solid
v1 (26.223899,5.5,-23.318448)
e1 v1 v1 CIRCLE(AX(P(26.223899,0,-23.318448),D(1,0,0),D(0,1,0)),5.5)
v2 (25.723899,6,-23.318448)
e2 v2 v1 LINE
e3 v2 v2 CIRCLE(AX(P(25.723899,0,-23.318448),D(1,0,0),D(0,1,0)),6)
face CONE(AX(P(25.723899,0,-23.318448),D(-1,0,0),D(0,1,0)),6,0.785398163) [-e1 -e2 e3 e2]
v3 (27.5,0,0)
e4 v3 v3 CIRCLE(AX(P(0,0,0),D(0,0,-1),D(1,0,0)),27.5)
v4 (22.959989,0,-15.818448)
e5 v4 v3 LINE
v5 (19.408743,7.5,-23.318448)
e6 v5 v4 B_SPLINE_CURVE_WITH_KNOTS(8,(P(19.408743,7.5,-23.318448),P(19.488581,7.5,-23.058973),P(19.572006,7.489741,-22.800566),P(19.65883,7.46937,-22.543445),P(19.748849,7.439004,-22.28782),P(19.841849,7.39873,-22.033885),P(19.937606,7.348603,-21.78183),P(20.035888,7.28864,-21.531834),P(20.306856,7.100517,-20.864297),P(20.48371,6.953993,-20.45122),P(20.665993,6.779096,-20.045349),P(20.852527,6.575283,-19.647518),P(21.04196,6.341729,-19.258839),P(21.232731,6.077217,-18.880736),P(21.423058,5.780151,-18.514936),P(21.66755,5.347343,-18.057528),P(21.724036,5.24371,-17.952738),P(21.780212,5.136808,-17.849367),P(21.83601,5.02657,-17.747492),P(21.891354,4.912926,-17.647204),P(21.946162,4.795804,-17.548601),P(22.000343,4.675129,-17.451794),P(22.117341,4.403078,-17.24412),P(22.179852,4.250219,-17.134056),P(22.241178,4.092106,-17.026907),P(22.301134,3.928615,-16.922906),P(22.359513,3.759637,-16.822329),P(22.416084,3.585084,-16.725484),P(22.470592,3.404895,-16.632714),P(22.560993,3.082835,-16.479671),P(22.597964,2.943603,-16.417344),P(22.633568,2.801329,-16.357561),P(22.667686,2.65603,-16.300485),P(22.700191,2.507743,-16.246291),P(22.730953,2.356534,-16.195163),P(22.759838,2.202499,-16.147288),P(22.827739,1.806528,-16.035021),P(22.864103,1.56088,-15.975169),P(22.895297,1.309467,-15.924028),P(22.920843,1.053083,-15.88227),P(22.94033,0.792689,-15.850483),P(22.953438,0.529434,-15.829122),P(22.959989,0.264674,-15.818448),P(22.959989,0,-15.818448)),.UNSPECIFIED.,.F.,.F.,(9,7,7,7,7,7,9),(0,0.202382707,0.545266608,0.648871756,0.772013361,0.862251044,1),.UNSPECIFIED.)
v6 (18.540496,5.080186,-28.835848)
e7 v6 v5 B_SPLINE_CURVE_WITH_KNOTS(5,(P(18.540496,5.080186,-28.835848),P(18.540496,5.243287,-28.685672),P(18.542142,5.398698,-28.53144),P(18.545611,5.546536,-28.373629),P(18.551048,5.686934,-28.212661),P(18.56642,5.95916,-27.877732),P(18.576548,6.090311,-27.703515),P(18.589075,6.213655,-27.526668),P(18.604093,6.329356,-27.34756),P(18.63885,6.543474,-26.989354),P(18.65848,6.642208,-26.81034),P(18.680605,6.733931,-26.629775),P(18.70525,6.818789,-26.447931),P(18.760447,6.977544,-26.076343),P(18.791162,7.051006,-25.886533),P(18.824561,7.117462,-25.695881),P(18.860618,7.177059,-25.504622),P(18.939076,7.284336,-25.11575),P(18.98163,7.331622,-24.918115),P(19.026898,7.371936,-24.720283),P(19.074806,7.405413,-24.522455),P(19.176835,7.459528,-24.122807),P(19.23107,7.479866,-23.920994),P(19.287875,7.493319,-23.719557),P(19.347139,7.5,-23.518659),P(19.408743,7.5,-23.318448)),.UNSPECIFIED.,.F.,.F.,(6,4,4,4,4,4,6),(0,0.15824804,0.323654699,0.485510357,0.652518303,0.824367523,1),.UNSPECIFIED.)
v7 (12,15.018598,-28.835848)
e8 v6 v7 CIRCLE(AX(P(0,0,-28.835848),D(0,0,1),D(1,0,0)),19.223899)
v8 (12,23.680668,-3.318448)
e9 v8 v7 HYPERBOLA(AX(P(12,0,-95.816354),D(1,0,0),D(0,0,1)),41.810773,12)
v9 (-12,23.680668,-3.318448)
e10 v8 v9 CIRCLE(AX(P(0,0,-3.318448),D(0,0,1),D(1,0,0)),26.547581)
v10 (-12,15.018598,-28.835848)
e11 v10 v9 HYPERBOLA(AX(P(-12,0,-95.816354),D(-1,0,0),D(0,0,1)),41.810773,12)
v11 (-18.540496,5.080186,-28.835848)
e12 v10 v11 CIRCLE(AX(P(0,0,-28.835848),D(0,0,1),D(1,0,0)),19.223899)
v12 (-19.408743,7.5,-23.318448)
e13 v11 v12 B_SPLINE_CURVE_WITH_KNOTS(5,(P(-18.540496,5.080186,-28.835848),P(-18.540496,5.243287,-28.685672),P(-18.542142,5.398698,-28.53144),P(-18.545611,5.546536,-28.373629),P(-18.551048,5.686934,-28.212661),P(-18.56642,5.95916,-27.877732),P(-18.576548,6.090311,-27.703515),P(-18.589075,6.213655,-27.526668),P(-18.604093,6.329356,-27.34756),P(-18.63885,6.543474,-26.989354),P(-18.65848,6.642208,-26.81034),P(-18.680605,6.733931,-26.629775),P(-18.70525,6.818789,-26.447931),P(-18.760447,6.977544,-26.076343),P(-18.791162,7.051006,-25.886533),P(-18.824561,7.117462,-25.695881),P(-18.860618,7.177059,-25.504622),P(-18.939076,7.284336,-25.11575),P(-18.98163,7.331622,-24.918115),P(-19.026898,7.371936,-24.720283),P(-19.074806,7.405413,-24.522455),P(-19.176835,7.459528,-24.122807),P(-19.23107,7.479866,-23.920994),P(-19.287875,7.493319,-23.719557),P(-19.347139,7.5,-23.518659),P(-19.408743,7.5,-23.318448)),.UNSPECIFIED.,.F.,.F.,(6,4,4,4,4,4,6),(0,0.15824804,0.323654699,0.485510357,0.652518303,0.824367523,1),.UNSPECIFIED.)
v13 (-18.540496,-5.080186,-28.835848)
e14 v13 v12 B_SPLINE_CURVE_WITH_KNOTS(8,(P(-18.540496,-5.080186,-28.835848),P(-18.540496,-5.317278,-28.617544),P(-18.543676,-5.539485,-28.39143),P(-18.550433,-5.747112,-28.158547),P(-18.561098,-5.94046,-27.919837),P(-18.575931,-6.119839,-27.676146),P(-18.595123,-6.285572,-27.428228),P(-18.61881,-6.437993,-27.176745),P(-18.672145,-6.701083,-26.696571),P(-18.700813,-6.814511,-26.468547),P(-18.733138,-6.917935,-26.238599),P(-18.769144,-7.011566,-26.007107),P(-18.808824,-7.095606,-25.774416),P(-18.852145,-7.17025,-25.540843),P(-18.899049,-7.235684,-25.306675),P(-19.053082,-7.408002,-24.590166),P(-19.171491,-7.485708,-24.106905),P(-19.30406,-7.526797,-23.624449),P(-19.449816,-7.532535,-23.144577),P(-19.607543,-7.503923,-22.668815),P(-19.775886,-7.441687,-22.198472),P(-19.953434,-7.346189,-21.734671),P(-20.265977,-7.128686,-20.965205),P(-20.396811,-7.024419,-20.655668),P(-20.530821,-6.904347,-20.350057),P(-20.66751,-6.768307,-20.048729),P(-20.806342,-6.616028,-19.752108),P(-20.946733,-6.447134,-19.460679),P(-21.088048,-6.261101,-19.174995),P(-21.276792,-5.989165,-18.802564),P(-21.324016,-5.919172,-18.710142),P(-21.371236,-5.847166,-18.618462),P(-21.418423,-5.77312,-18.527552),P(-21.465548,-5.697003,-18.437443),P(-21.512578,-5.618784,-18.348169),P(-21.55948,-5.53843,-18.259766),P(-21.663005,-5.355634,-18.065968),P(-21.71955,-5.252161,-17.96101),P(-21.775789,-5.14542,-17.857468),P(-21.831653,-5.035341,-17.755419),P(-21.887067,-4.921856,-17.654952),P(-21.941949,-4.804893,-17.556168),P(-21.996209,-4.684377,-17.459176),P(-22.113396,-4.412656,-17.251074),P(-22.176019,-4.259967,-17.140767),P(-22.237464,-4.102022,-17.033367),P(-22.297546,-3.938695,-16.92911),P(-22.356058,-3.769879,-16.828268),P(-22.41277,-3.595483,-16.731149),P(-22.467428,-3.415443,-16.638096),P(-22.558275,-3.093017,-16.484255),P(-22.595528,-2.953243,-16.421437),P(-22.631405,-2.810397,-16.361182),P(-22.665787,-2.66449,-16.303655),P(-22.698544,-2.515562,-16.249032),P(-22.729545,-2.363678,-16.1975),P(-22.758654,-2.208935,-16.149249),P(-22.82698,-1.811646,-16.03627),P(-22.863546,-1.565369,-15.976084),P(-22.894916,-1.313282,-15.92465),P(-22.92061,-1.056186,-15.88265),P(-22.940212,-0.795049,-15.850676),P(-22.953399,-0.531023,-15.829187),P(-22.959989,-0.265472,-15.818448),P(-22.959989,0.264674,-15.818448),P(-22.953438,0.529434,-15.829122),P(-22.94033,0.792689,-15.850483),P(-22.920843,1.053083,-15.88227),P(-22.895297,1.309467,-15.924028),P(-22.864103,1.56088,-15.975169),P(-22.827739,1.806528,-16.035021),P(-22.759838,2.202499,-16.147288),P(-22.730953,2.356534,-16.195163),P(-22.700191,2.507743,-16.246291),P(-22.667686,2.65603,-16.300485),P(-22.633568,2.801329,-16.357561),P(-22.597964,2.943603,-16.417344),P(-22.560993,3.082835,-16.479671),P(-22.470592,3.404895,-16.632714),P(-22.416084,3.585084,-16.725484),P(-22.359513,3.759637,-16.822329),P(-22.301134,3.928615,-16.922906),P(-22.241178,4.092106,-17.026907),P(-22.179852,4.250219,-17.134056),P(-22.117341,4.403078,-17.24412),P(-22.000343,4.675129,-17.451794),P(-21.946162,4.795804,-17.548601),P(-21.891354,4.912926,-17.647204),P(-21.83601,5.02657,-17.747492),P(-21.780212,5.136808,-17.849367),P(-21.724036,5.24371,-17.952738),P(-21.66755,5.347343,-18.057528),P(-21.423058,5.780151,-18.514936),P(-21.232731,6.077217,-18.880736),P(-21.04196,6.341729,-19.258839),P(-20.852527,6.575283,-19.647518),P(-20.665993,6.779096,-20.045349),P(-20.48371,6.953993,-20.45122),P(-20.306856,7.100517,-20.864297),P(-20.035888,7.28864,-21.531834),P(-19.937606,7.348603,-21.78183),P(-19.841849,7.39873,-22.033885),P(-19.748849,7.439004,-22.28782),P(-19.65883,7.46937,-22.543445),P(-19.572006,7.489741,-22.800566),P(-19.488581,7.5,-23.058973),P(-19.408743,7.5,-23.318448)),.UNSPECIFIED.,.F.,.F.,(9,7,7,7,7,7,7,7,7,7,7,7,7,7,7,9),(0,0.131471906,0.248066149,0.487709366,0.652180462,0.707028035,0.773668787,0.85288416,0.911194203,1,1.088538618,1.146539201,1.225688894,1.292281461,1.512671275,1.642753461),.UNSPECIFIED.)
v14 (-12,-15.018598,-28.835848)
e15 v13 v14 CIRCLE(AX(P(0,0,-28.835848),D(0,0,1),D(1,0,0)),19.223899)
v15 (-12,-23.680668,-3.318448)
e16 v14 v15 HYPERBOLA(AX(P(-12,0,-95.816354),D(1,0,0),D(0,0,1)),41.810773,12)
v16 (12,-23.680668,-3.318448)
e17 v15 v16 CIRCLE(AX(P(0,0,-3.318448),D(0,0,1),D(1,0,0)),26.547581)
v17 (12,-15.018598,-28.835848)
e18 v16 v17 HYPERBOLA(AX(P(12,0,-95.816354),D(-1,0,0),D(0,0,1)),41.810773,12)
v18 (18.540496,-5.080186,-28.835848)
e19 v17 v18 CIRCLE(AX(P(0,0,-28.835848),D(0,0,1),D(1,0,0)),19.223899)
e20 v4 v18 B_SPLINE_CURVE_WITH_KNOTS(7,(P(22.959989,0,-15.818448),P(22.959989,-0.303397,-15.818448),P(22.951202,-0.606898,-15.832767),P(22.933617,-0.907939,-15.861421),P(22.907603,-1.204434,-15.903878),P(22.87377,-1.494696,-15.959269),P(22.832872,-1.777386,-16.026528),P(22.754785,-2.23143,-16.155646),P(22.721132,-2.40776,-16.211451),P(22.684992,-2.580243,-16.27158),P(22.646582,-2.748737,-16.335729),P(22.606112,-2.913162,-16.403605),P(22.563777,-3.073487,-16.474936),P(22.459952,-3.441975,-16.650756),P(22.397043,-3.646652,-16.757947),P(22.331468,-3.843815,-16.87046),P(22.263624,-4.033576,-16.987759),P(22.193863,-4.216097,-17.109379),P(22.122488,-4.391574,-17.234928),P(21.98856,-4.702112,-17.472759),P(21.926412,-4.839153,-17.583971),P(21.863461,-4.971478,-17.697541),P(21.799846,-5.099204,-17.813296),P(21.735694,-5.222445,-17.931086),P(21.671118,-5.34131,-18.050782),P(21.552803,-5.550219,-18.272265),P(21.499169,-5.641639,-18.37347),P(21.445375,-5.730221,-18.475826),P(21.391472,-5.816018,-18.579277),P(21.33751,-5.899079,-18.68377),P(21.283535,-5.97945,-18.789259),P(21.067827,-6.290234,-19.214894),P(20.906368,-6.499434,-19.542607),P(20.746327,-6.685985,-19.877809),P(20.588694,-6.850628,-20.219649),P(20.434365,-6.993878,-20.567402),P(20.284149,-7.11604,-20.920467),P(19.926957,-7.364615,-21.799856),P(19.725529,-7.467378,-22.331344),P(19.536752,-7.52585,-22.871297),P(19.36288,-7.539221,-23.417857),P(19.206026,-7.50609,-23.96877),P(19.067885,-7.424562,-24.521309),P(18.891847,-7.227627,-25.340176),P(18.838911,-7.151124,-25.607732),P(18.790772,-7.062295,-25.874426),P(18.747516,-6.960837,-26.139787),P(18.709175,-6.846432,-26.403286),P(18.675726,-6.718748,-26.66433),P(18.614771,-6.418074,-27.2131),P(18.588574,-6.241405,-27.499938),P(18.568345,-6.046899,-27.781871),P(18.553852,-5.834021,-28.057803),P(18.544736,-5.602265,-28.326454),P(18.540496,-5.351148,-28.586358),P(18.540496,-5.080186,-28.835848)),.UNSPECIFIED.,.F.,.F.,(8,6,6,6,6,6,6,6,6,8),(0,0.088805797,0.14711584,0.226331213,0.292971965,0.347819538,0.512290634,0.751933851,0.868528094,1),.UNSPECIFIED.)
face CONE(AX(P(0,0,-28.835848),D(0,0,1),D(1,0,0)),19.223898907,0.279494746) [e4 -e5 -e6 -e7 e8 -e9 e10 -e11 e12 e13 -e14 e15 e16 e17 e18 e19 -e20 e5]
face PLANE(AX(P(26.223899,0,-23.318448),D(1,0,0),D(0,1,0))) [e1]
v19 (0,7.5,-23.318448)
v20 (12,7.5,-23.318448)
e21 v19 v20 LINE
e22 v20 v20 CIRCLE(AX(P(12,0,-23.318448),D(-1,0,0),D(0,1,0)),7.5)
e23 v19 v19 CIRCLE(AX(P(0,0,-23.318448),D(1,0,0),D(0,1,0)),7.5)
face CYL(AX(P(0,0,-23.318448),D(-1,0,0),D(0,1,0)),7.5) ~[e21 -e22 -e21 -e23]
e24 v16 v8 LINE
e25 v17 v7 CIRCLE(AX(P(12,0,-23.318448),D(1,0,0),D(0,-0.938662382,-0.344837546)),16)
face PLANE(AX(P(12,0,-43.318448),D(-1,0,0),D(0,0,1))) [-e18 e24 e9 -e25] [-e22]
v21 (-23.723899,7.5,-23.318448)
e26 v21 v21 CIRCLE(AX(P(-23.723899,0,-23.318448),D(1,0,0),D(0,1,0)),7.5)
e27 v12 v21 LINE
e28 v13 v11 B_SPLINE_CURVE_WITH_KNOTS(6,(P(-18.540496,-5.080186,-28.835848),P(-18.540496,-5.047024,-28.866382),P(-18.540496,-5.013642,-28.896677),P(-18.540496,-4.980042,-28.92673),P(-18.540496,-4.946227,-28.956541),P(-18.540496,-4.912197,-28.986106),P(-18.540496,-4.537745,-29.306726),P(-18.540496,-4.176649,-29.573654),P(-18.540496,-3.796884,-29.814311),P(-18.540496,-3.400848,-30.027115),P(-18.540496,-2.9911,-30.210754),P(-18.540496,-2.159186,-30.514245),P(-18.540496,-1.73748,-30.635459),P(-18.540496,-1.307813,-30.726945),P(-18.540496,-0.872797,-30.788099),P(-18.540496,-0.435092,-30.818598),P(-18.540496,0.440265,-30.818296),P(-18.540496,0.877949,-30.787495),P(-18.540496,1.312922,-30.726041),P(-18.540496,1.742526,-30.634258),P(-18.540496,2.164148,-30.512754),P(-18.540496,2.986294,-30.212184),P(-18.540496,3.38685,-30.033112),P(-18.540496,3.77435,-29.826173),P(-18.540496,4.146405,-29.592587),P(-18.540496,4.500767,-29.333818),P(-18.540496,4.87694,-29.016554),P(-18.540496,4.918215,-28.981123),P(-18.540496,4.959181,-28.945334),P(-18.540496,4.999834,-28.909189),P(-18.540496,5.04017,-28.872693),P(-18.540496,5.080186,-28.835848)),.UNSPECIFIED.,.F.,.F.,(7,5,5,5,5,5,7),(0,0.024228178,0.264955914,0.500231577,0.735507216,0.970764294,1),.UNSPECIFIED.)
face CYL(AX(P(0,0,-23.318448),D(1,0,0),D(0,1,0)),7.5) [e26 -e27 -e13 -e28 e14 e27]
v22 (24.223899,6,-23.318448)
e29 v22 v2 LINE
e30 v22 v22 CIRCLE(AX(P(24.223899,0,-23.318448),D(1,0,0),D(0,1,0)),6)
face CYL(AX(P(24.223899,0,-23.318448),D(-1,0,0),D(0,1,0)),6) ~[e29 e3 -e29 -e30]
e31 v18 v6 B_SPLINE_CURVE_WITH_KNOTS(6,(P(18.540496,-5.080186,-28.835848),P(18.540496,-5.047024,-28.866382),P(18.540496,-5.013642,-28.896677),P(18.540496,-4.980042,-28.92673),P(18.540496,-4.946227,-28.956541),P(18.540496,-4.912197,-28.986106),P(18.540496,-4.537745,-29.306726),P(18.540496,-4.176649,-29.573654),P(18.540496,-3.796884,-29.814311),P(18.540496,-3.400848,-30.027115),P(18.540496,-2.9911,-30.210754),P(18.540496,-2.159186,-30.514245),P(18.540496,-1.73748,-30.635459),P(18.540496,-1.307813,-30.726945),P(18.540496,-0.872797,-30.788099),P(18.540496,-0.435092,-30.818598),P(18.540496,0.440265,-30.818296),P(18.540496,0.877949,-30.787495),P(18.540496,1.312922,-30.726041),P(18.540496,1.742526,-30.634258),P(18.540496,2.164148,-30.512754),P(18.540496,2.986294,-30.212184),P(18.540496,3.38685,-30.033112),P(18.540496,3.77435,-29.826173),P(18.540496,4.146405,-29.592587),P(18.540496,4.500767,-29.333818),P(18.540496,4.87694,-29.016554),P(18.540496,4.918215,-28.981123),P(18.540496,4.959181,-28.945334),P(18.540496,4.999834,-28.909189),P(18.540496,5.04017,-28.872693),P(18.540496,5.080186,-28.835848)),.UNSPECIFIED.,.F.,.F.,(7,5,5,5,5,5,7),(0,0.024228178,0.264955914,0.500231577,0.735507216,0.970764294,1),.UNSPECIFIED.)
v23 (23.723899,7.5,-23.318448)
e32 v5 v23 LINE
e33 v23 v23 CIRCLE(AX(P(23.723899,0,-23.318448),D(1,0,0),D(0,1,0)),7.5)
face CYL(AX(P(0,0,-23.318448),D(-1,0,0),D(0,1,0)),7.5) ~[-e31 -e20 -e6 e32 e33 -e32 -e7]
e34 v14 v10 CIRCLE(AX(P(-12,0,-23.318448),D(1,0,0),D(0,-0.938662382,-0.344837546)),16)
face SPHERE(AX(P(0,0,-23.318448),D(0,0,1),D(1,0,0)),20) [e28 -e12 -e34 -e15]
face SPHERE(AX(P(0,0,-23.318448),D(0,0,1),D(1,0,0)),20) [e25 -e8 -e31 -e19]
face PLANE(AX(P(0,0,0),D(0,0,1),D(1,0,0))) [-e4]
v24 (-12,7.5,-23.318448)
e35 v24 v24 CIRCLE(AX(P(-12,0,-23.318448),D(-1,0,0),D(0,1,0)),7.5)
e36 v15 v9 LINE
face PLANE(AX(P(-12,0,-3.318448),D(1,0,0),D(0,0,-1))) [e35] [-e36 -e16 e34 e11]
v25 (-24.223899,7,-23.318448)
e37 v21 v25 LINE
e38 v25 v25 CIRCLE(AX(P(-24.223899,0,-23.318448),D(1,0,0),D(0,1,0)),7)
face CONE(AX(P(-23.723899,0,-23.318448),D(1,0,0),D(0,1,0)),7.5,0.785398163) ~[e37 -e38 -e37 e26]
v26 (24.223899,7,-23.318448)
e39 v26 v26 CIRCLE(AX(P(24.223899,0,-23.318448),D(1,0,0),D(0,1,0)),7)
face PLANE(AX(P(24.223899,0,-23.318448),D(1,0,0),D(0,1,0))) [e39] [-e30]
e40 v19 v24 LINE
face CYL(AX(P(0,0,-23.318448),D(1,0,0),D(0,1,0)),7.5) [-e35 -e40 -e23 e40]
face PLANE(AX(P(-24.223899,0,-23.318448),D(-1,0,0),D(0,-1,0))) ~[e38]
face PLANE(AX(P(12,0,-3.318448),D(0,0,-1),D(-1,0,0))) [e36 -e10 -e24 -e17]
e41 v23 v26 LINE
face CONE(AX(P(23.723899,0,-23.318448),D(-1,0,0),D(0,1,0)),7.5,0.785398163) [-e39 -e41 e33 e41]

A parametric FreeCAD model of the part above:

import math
import FreeCAD as App
import Part
import Sketcher

V = App.Vector
Q = App.Units.Quantity


def edges_at(feature, points):
    """Names of the edges that pass closest to the given points."""
    edges = feature.Shape.Edges
    near = lambda p: min(range(len(edges)), key=lambda i: edges[i].distToShape(Part.Vertex(*p))[0])
    return sorted({f"Edge{near(p) + 1}" for p in points})


def add_polygon(sketch, points):
    """Adds a closed chain of lines whose ends are joined by coincident constraints."""
    first, n = sketch.GeometryCount, len(points)
    for a, b in zip(points, points[1:] + points[:1]):
        sketch.addGeometry(Part.LineSegment(App.Vector(*a, 0), App.Vector(*b, 0)), False)
    for i in range(n):
        sketch.addConstraint(Sketcher.Constraint("Coincident", first + i, 2, first + (i + 1) % n, 1))

doc = App.newDocument("Part")
body = doc.addObject("PartDesign::Body", "Body")

# Sketch on XZ plane
sketch1 = body.newObject("Sketcher::SketchObject", "Sketch")
sketch1.AttachmentSupport = (doc.getObject("XZ_Plane"), [""])
sketch1.MapMode = "FlatFace"
sketch1.addGeometry(Part.LineSegment(V(28, 0, 0), V(0, 0, 0)), False)
sketch1.addGeometry(Part.LineSegment(V(0, 0, 0), V(0, -43, 0)), False)
sketch1.addGeometry(Part.ArcOfCircle(Part.Circle(V(0, -23, 0), V(0, 0, 1), 20), math.radians(-90), math.radians(-16)), False)
sketch1.addGeometry(Part.LineSegment(V(19, -29, 0), V(28, 0, 0)), False)
sketch1.addConstraint(Sketcher.Constraint("Coincident", 0, 2, 1, 1))
sketch1.addConstraint(Sketcher.Constraint("Coincident", 1, 2, 2, 1))
sketch1.addConstraint(Sketcher.Constraint("Tangent", 2, 2, 3, 1))
sketch1.addConstraint(Sketcher.Constraint("Coincident", 3, 2, 0, 1))
sketch1.addConstraint(Sketcher.Constraint("Horizontal", 0))
sketch1.addConstraint(Sketcher.Constraint("Vertical", 1))
sketch1.addConstraint(Sketcher.Constraint("Coincident", 0, 2, -1, 1))
sketch1.addConstraint(Sketcher.Constraint("PointOnObject", 2, 3, -2))
sketch1.addConstraint(Sketcher.Constraint("Radius", 2, Q("20 mm")))
sketch1.addConstraint(Sketcher.Constraint("Distance", 3, Q("30 mm")))
sketch1.addConstraint(Sketcher.Constraint("DistanceX", 0, 2, 0, 1, Q("27.5 mm")))
revolution = body.newObject("PartDesign::Revolution", "Revolution")
revolution.Profile = sketch1
revolution.ReferenceAxis = (sketch1, ["V_Axis"])
revolution.Angle = 360

# Sketch on XZ plane
sketch2 = body.newObject("Sketcher::SketchObject", "Sketch001")
sketch2.AttachmentSupport = (doc.getObject("XZ_Plane"), [""])
sketch2.MapMode = "FlatFace"
add_polygon(sketch2, [(12, -43), (12, -3), (-12, -3), (-12, -43)])  # lines 0-3
sketch2.addConstraint(Sketcher.Constraint("Vertical", 0))
sketch2.addConstraint(Sketcher.Constraint("Horizontal", 1))
sketch2.addConstraint(Sketcher.Constraint("Vertical", 2))
sketch2.addConstraint(Sketcher.Constraint("Horizontal", 3))
sketch2.addConstraint(Sketcher.Constraint("DistanceX", 1, 2, 1, 1, Q("24 mm")))
sketch2.addConstraint(Sketcher.Constraint("DistanceY", 0, 1, 0, 2, Q("40 mm")))
sketch2.addConstraint(Sketcher.Constraint("DistanceX", -1, 1, 0, 2, Q("12 mm")))
sketch2.addConstraint(Sketcher.Constraint("DistanceY", 0, 2, -1, 1, Q("3.318448 mm")))
pocket1 = body.newObject("PartDesign::Pocket", "Pocket")
pocket1.Profile = sketch2
pocket1.Type = "ThroughAll"
pocket1.Midplane = True

# Sketch on YZ plane
sketch3 = body.newObject("Sketcher::SketchObject", "Sketch002")
sketch3.AttachmentSupport = (doc.getObject("YZ_Plane"), [""])
sketch3.MapMode = "FlatFace"
sketch3.addGeometry(Part.Circle(V(0, -23, 0), V(0, 0, 1), 8), False)
sketch3.addConstraint(Sketcher.Constraint("PointOnObject", 0, 3, -2))
sketch3.addConstraint(Sketcher.Constraint("Diameter", 0, Q("15 mm")))
sketch3.addConstraint(Sketcher.Constraint("DistanceY", 0, 3, -1, 1, Q("23.318448 mm")))
pad1 = body.newObject("PartDesign::Pad", "Pad")
pad1.Profile = sketch3
pad1.Length = 24.223899
body2 = doc.addObject("PartDesign::Body", "Body001")
doc.recompute()

body2.BaseFeature = body
doc.recompute()

mirroring = doc.addObject("Part::Mirroring", "Mirroring")
mirroring.Source = body
mirroring.Base = V(0, 0, 0)
mirroring.Normal = V(1, 0, 0)
body3 = doc.addObject("PartDesign::Body", "Body002")
body3.BaseFeature = mirroring
boolean = body2.newObject("PartDesign::Boolean", "Boolean")
boolean.Type = "Fuse"
boolean.addObjects([body3])
doc.recompute()

# Sketch on YZ plane
sketch4 = body2.newObject("Sketcher::SketchObject", "Sketch003")
sketch4.AttachmentSupport = (doc.getObject("YZ_Plane001"), [""])
sketch4.MapMode = "FlatFace"
sketch4.AttachmentOffset = App.Placement(V(0, 0, 24.223899), App.Rotation())
sketch4.addGeometry(Part.Circle(V(0, -23, 0), V(0, 0, 1), 6), False)
sketch4.addConstraint(Sketcher.Constraint("PointOnObject", 0, 3, -2))
sketch4.addConstraint(Sketcher.Constraint("Diameter", 0, Q("12 mm")))
sketch4.addConstraint(Sketcher.Constraint("DistanceY", 0, 3, -1, 1, Q("23.318448 mm")))
pad2 = body2.newObject("PartDesign::Pad", "Pad001")
pad2.Profile = sketch4
pad2.Type = "TwoLengths"
pad2.Length = 2
pad2.Length2 = 12.223899
doc.recompute()

chamfer = body2.newObject("PartDesign::Chamfer", "Chamfer")
chamfer.Base = (pad2, edges_at(pad2, [(26.224, -6, -23.318), (-24.224, -7.5, -23.318), (24.224, -7.5, -23.318)]))
chamfer.Size = 0.5
mirroring.Visibility = False

doc.recompute()
